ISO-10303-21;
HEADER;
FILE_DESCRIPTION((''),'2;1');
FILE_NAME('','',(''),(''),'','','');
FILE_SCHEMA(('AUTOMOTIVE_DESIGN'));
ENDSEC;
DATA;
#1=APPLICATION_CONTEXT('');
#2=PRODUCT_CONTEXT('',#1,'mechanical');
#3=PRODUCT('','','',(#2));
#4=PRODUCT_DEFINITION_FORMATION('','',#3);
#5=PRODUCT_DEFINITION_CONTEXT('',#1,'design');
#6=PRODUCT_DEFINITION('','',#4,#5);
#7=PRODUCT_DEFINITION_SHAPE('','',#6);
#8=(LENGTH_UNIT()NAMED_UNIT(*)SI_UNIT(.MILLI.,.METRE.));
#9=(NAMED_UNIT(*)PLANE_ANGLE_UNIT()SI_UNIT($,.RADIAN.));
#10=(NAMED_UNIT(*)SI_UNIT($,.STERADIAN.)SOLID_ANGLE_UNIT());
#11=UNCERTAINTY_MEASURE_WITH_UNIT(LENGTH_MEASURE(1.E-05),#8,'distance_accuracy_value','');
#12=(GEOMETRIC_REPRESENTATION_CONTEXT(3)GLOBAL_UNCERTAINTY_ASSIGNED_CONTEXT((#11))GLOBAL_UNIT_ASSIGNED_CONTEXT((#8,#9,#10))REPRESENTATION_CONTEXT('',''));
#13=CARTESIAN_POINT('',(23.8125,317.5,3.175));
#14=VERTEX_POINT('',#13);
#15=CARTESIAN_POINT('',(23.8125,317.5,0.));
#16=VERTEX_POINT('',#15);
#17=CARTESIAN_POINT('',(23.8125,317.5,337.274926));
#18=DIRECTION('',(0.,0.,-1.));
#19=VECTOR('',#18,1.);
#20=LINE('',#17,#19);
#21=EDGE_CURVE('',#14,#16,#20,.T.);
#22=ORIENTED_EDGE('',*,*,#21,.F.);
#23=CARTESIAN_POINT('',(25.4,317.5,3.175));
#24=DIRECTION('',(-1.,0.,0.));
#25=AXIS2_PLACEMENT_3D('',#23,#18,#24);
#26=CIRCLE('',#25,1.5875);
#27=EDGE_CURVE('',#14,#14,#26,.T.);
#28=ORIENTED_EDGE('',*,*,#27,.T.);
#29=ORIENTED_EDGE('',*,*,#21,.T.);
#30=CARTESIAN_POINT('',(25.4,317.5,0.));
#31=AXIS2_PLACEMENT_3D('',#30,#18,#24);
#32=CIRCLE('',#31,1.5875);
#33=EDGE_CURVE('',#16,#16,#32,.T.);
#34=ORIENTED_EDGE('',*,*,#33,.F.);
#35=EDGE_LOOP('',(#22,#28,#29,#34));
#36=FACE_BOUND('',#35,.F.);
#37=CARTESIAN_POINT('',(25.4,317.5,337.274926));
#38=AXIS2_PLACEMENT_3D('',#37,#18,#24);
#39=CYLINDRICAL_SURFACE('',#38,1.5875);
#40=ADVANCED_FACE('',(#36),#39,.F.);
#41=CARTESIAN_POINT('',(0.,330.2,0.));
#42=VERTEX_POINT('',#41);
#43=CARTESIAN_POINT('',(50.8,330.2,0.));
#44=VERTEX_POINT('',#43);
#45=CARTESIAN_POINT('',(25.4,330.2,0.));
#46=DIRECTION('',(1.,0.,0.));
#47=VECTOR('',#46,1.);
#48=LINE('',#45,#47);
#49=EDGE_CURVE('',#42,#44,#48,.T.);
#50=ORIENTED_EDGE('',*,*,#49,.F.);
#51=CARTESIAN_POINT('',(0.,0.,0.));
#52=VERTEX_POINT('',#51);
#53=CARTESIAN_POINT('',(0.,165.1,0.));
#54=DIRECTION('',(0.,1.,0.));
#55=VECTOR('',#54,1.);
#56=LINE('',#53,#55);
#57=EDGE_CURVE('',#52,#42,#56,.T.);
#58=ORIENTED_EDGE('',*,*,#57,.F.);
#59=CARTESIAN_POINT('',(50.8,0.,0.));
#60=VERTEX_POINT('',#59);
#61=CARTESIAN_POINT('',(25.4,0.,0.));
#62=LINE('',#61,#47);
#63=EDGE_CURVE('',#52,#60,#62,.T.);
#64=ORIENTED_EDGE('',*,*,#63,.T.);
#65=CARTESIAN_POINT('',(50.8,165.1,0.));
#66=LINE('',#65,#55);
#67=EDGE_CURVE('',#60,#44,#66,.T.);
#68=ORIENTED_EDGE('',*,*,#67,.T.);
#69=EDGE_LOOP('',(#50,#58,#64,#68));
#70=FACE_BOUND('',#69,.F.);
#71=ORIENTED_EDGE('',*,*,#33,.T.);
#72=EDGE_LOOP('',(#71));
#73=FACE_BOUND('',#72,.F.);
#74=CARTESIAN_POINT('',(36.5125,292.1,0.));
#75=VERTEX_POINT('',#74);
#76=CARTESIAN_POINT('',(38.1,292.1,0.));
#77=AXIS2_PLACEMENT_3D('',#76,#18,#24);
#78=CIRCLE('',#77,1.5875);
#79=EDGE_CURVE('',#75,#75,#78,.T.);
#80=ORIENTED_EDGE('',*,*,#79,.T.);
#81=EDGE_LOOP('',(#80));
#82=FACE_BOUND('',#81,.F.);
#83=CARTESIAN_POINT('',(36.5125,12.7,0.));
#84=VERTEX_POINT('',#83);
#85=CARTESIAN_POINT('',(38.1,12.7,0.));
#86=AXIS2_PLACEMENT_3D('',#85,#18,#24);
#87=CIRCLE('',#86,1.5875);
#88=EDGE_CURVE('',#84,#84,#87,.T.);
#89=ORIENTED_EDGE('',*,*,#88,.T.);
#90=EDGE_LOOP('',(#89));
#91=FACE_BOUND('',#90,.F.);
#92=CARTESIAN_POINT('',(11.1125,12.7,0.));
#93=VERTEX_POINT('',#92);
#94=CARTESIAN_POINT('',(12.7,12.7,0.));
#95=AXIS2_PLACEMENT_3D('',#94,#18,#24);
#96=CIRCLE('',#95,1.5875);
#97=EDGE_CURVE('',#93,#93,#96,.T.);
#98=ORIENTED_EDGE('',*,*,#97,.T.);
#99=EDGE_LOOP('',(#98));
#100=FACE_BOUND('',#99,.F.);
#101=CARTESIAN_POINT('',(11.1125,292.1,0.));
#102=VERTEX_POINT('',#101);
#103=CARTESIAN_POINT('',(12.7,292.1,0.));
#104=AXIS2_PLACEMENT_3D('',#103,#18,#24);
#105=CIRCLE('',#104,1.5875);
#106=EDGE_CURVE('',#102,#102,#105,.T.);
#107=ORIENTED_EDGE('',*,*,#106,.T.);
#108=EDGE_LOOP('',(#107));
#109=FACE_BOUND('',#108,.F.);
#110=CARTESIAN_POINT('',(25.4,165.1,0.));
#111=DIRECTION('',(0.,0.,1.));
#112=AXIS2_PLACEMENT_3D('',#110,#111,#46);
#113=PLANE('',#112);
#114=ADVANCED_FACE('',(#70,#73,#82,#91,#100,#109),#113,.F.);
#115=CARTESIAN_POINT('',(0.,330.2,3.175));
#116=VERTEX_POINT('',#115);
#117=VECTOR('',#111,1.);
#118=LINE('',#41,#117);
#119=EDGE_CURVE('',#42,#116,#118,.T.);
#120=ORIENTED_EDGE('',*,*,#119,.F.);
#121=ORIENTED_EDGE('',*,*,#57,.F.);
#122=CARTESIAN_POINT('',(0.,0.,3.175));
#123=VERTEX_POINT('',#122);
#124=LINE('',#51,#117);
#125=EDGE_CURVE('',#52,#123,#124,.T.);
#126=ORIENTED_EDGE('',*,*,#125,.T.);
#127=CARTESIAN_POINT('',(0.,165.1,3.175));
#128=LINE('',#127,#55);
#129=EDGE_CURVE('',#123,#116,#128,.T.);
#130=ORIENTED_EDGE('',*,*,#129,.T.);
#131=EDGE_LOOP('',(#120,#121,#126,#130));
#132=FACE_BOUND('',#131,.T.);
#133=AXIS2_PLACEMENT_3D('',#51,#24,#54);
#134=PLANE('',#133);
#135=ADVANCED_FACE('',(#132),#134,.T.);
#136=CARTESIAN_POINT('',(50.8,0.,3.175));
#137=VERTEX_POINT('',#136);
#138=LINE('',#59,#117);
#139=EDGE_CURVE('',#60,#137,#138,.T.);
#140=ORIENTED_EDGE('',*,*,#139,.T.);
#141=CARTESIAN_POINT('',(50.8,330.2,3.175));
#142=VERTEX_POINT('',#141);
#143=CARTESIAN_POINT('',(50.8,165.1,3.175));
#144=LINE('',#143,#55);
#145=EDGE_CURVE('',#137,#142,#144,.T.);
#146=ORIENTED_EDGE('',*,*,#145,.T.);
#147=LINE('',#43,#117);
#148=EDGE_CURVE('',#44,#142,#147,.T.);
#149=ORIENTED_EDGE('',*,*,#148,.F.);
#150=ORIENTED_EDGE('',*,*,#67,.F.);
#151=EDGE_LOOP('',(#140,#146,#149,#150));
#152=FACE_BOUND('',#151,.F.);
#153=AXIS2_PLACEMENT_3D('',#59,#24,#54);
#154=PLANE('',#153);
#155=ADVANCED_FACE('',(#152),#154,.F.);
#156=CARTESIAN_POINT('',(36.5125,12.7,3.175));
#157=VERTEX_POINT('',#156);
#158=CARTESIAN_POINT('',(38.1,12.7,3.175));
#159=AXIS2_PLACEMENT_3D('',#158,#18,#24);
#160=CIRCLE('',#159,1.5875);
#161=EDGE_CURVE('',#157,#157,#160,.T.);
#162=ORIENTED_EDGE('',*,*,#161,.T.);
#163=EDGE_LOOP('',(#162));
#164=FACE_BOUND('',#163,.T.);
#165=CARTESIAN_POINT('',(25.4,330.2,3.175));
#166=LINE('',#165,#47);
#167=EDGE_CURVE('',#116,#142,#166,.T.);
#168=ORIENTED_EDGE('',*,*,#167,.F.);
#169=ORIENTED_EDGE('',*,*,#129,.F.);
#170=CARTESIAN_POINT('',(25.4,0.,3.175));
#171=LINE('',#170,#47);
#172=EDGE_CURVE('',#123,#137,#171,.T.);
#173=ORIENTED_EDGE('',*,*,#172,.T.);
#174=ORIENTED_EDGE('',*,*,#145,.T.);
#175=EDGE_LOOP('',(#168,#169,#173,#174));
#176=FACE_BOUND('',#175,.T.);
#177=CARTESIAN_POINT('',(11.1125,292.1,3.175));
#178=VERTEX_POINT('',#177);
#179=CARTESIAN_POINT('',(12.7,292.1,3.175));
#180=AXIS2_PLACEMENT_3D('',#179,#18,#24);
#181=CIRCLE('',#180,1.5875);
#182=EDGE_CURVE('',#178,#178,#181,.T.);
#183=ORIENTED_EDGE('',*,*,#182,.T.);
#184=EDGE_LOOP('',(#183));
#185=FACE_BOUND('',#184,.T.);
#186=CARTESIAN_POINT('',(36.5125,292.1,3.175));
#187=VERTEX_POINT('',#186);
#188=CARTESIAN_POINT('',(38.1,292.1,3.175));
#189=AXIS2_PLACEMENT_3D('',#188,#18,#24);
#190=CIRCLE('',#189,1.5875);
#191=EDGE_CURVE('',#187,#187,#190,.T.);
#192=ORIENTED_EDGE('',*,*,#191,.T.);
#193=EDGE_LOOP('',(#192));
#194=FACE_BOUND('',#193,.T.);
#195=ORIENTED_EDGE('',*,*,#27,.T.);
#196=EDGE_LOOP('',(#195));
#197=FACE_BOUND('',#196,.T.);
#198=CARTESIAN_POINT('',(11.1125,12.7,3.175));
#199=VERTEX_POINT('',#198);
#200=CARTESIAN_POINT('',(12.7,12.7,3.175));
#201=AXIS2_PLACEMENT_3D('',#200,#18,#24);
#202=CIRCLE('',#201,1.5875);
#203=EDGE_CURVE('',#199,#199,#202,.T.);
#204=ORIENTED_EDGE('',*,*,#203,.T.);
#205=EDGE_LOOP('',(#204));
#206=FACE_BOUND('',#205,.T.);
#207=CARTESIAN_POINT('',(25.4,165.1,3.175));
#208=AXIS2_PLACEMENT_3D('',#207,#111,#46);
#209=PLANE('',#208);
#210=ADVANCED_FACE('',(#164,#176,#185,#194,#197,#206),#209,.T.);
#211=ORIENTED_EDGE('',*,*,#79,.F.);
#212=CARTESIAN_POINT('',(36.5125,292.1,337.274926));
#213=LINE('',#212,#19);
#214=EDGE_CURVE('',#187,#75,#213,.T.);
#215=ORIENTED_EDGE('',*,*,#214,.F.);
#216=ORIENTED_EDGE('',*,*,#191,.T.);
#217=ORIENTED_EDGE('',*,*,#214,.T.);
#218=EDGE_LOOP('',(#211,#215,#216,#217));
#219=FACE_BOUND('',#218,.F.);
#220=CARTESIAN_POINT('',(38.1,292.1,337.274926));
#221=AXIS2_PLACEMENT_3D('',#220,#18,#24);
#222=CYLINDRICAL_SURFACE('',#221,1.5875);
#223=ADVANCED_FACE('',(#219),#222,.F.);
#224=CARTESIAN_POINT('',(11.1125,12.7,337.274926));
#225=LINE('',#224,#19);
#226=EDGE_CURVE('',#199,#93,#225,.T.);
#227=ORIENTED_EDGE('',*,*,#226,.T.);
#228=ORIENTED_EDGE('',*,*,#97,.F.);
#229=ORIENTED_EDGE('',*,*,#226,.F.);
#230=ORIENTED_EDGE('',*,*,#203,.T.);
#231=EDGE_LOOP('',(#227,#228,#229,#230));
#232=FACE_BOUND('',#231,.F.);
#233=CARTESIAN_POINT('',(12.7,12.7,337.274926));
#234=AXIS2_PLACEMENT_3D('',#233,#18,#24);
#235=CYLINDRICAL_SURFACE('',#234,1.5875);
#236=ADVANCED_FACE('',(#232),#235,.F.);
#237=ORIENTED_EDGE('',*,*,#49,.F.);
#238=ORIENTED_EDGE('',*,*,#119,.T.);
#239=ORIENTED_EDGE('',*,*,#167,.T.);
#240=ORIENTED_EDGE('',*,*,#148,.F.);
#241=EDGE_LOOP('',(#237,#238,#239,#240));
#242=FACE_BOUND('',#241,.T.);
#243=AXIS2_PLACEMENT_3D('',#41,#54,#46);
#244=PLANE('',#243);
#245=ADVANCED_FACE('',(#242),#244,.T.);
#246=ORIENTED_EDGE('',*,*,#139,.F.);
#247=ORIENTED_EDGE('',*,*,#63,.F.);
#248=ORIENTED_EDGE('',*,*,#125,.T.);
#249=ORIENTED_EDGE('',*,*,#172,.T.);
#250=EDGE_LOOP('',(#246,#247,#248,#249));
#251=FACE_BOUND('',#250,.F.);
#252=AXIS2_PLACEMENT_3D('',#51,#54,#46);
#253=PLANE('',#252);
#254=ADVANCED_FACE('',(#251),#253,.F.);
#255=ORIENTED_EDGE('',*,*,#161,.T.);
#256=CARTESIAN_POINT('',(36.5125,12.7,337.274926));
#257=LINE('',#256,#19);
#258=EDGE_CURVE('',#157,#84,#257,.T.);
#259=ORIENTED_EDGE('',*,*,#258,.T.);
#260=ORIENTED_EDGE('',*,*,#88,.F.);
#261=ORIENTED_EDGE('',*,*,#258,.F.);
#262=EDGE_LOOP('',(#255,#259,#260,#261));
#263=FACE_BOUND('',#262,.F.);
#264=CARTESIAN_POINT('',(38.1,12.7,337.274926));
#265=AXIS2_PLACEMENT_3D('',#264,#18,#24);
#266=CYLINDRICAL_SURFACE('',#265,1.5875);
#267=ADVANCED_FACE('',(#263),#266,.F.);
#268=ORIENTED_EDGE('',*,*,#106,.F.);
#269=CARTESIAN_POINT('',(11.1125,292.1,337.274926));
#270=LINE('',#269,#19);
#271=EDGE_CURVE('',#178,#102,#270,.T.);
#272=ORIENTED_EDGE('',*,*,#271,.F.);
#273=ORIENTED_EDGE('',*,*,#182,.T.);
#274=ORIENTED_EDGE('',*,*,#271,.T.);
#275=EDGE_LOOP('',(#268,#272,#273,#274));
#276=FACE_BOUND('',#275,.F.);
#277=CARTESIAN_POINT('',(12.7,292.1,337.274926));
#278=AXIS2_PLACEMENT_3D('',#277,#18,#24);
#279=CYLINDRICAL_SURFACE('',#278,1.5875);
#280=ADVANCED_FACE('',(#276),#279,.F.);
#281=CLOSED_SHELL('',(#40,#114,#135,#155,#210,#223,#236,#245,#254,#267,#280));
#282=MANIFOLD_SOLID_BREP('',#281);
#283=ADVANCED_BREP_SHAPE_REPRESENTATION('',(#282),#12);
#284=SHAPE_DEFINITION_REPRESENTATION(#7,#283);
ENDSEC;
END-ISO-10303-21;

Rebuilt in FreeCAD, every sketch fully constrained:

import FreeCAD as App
import Part
import Sketcher
Q = App.Units.Quantity

doc = App.newDocument("Part")
body = doc.addObject("PartDesign::Body", "Body")

# Sketch on XY plane
sketch1 = body.newObject("Sketcher::SketchObject", "Sketch")
sketch1.AttachmentSupport = (doc.getObject("XY_Plane"), [""])
sketch1.MapMode = "FlatFace"
sketch1.addGeometry(Part.LineSegment(App.Vector(0, 330, 0), App.Vector(0, 0, 0)), False)
sketch1.addGeometry(Part.LineSegment(App.Vector(0, 0, 0), App.Vector(51, 0, 0)), False)
sketch1.addGeometry(Part.LineSegment(App.Vector(51, 0, 0), App.Vector(51, 330, 0)), False)
sketch1.addGeometry(Part.LineSegment(App.Vector(51, 330, 0), App.Vector(0, 330, 0)), False)
sketch1.addConstraint(Sketcher.Constraint("Coincident", 0, 2, 1, 1))
sketch1.addConstraint(Sketcher.Constraint("Coincident", 1, 2, 2, 1))
sketch1.addConstraint(Sketcher.Constraint("Coincident", 2, 2, 3, 1))
sketch1.addConstraint(Sketcher.Constraint("Coincident", 3, 2, 0, 1))
sketch1.addConstraint(Sketcher.Constraint("Vertical", 0))
sketch1.addConstraint(Sketcher.Constraint("Horizontal", 1))
sketch1.addConstraint(Sketcher.Constraint("Vertical", 2))
sketch1.addConstraint(Sketcher.Constraint("Horizontal", 3))
sketch1.addConstraint(Sketcher.Constraint("Coincident", 0, 2, -1, 1))
sketch1.addConstraint(Sketcher.Constraint("DistanceX", 1, 1, 1, 2, Q("2 in")))
sketch1.addConstraint(Sketcher.Constraint("DistanceY", 0, 2, 0, 1, Q("13 in")))
pad1 = body.newObject("PartDesign::Pad", "Pad")
pad1.Profile = sketch1
pad1.Length = Q("0.125 in")

# Sketch on XY plane
sketch2 = body.newObject("Sketcher::SketchObject", "Sketch001")
sketch2.AttachmentSupport = (doc.getObject("XY_Plane"), [""])
sketch2.MapMode = "FlatFace"
sketch2.AttachmentOffset = App.Placement(App.Vector(0, 0, 0.125 * 25.4), App.Rotation())
sketch2.addGeometry(Part.Circle(App.Vector(12.7, 292.1, 0), App.Vector(0, 0, 1), 1.6), False)
sketch2.addGeometry(Part.Circle(App.Vector(25.4, 317.5, 0), App.Vector(0, 0, 1), 1.6), False)
sketch2.addGeometry(Part.Circle(App.Vector(38.1, 292.1, 0), App.Vector(0, 0, 1), 1.6), False)
sketch2.addGeometry(Part.Circle(App.Vector(12.7, 12.7, 0), App.Vector(0, 0, 1), 1.6), False)
sketch2.addGeometry(Part.Circle(App.Vector(38.1, 12.7, 0), App.Vector(0, 0, 1), 1.6), False)
sketch2.addConstraint(Sketcher.Constraint("Equal", 0, 1))
sketch2.addConstraint(Sketcher.Constraint("Equal", 1, 2))
sketch2.addConstraint(Sketcher.Constraint("Equal", 2, 3))
sketch2.addConstraint(Sketcher.Constraint("Equal", 3, 4))
sketch2.addConstraint(Sketcher.Constraint("Horizontal", 0, 3, 2, 3))
sketch2.addConstraint(Sketcher.Constraint("Horizontal", 3, 3, 4, 3))
sketch2.addConstraint(Sketcher.Constraint("Vertical", 0, 3, 3, 3))
sketch2.addConstraint(Sketcher.Constraint("Vertical", 2, 3, 4, 3))
sketch2.addConstraint(Sketcher.Constraint("Diameter", 0, Q("0.125 in")))
sketch2.addConstraint(Sketcher.Constraint("DistanceX", -1, 1, 1, 3, Q("1 in")))
sketch2.addConstraint(Sketcher.Constraint("DistanceY", 0, 3, 1, 3, Q("1 in")))
sketch2.addConstraint(Sketcher.Constraint("DistanceX", 0, 3, 2, 3, Q("1 in")))
sketch2.addConstraint(Sketcher.Constraint("DistanceY", 3, 3, 0, 3, Q("11 in")))
sketch2.addConstraint(Sketcher.Constraint("DistanceX", -1, 1, 0, 3, Q("0.5 in")))
sketch2.addConstraint(Sketcher.Constraint("DistanceY", -1, 1, 0, 3, Q("11.5 in")))
doc.recompute()
hole = body.newObject("PartDesign::Hole", "Hole")
hole.Profile = sketch2
hole.ThreadType = "None"
hole.Diameter = Q("0.125 in")
hole.DepthType = "ThroughAll"

doc.recompute()
